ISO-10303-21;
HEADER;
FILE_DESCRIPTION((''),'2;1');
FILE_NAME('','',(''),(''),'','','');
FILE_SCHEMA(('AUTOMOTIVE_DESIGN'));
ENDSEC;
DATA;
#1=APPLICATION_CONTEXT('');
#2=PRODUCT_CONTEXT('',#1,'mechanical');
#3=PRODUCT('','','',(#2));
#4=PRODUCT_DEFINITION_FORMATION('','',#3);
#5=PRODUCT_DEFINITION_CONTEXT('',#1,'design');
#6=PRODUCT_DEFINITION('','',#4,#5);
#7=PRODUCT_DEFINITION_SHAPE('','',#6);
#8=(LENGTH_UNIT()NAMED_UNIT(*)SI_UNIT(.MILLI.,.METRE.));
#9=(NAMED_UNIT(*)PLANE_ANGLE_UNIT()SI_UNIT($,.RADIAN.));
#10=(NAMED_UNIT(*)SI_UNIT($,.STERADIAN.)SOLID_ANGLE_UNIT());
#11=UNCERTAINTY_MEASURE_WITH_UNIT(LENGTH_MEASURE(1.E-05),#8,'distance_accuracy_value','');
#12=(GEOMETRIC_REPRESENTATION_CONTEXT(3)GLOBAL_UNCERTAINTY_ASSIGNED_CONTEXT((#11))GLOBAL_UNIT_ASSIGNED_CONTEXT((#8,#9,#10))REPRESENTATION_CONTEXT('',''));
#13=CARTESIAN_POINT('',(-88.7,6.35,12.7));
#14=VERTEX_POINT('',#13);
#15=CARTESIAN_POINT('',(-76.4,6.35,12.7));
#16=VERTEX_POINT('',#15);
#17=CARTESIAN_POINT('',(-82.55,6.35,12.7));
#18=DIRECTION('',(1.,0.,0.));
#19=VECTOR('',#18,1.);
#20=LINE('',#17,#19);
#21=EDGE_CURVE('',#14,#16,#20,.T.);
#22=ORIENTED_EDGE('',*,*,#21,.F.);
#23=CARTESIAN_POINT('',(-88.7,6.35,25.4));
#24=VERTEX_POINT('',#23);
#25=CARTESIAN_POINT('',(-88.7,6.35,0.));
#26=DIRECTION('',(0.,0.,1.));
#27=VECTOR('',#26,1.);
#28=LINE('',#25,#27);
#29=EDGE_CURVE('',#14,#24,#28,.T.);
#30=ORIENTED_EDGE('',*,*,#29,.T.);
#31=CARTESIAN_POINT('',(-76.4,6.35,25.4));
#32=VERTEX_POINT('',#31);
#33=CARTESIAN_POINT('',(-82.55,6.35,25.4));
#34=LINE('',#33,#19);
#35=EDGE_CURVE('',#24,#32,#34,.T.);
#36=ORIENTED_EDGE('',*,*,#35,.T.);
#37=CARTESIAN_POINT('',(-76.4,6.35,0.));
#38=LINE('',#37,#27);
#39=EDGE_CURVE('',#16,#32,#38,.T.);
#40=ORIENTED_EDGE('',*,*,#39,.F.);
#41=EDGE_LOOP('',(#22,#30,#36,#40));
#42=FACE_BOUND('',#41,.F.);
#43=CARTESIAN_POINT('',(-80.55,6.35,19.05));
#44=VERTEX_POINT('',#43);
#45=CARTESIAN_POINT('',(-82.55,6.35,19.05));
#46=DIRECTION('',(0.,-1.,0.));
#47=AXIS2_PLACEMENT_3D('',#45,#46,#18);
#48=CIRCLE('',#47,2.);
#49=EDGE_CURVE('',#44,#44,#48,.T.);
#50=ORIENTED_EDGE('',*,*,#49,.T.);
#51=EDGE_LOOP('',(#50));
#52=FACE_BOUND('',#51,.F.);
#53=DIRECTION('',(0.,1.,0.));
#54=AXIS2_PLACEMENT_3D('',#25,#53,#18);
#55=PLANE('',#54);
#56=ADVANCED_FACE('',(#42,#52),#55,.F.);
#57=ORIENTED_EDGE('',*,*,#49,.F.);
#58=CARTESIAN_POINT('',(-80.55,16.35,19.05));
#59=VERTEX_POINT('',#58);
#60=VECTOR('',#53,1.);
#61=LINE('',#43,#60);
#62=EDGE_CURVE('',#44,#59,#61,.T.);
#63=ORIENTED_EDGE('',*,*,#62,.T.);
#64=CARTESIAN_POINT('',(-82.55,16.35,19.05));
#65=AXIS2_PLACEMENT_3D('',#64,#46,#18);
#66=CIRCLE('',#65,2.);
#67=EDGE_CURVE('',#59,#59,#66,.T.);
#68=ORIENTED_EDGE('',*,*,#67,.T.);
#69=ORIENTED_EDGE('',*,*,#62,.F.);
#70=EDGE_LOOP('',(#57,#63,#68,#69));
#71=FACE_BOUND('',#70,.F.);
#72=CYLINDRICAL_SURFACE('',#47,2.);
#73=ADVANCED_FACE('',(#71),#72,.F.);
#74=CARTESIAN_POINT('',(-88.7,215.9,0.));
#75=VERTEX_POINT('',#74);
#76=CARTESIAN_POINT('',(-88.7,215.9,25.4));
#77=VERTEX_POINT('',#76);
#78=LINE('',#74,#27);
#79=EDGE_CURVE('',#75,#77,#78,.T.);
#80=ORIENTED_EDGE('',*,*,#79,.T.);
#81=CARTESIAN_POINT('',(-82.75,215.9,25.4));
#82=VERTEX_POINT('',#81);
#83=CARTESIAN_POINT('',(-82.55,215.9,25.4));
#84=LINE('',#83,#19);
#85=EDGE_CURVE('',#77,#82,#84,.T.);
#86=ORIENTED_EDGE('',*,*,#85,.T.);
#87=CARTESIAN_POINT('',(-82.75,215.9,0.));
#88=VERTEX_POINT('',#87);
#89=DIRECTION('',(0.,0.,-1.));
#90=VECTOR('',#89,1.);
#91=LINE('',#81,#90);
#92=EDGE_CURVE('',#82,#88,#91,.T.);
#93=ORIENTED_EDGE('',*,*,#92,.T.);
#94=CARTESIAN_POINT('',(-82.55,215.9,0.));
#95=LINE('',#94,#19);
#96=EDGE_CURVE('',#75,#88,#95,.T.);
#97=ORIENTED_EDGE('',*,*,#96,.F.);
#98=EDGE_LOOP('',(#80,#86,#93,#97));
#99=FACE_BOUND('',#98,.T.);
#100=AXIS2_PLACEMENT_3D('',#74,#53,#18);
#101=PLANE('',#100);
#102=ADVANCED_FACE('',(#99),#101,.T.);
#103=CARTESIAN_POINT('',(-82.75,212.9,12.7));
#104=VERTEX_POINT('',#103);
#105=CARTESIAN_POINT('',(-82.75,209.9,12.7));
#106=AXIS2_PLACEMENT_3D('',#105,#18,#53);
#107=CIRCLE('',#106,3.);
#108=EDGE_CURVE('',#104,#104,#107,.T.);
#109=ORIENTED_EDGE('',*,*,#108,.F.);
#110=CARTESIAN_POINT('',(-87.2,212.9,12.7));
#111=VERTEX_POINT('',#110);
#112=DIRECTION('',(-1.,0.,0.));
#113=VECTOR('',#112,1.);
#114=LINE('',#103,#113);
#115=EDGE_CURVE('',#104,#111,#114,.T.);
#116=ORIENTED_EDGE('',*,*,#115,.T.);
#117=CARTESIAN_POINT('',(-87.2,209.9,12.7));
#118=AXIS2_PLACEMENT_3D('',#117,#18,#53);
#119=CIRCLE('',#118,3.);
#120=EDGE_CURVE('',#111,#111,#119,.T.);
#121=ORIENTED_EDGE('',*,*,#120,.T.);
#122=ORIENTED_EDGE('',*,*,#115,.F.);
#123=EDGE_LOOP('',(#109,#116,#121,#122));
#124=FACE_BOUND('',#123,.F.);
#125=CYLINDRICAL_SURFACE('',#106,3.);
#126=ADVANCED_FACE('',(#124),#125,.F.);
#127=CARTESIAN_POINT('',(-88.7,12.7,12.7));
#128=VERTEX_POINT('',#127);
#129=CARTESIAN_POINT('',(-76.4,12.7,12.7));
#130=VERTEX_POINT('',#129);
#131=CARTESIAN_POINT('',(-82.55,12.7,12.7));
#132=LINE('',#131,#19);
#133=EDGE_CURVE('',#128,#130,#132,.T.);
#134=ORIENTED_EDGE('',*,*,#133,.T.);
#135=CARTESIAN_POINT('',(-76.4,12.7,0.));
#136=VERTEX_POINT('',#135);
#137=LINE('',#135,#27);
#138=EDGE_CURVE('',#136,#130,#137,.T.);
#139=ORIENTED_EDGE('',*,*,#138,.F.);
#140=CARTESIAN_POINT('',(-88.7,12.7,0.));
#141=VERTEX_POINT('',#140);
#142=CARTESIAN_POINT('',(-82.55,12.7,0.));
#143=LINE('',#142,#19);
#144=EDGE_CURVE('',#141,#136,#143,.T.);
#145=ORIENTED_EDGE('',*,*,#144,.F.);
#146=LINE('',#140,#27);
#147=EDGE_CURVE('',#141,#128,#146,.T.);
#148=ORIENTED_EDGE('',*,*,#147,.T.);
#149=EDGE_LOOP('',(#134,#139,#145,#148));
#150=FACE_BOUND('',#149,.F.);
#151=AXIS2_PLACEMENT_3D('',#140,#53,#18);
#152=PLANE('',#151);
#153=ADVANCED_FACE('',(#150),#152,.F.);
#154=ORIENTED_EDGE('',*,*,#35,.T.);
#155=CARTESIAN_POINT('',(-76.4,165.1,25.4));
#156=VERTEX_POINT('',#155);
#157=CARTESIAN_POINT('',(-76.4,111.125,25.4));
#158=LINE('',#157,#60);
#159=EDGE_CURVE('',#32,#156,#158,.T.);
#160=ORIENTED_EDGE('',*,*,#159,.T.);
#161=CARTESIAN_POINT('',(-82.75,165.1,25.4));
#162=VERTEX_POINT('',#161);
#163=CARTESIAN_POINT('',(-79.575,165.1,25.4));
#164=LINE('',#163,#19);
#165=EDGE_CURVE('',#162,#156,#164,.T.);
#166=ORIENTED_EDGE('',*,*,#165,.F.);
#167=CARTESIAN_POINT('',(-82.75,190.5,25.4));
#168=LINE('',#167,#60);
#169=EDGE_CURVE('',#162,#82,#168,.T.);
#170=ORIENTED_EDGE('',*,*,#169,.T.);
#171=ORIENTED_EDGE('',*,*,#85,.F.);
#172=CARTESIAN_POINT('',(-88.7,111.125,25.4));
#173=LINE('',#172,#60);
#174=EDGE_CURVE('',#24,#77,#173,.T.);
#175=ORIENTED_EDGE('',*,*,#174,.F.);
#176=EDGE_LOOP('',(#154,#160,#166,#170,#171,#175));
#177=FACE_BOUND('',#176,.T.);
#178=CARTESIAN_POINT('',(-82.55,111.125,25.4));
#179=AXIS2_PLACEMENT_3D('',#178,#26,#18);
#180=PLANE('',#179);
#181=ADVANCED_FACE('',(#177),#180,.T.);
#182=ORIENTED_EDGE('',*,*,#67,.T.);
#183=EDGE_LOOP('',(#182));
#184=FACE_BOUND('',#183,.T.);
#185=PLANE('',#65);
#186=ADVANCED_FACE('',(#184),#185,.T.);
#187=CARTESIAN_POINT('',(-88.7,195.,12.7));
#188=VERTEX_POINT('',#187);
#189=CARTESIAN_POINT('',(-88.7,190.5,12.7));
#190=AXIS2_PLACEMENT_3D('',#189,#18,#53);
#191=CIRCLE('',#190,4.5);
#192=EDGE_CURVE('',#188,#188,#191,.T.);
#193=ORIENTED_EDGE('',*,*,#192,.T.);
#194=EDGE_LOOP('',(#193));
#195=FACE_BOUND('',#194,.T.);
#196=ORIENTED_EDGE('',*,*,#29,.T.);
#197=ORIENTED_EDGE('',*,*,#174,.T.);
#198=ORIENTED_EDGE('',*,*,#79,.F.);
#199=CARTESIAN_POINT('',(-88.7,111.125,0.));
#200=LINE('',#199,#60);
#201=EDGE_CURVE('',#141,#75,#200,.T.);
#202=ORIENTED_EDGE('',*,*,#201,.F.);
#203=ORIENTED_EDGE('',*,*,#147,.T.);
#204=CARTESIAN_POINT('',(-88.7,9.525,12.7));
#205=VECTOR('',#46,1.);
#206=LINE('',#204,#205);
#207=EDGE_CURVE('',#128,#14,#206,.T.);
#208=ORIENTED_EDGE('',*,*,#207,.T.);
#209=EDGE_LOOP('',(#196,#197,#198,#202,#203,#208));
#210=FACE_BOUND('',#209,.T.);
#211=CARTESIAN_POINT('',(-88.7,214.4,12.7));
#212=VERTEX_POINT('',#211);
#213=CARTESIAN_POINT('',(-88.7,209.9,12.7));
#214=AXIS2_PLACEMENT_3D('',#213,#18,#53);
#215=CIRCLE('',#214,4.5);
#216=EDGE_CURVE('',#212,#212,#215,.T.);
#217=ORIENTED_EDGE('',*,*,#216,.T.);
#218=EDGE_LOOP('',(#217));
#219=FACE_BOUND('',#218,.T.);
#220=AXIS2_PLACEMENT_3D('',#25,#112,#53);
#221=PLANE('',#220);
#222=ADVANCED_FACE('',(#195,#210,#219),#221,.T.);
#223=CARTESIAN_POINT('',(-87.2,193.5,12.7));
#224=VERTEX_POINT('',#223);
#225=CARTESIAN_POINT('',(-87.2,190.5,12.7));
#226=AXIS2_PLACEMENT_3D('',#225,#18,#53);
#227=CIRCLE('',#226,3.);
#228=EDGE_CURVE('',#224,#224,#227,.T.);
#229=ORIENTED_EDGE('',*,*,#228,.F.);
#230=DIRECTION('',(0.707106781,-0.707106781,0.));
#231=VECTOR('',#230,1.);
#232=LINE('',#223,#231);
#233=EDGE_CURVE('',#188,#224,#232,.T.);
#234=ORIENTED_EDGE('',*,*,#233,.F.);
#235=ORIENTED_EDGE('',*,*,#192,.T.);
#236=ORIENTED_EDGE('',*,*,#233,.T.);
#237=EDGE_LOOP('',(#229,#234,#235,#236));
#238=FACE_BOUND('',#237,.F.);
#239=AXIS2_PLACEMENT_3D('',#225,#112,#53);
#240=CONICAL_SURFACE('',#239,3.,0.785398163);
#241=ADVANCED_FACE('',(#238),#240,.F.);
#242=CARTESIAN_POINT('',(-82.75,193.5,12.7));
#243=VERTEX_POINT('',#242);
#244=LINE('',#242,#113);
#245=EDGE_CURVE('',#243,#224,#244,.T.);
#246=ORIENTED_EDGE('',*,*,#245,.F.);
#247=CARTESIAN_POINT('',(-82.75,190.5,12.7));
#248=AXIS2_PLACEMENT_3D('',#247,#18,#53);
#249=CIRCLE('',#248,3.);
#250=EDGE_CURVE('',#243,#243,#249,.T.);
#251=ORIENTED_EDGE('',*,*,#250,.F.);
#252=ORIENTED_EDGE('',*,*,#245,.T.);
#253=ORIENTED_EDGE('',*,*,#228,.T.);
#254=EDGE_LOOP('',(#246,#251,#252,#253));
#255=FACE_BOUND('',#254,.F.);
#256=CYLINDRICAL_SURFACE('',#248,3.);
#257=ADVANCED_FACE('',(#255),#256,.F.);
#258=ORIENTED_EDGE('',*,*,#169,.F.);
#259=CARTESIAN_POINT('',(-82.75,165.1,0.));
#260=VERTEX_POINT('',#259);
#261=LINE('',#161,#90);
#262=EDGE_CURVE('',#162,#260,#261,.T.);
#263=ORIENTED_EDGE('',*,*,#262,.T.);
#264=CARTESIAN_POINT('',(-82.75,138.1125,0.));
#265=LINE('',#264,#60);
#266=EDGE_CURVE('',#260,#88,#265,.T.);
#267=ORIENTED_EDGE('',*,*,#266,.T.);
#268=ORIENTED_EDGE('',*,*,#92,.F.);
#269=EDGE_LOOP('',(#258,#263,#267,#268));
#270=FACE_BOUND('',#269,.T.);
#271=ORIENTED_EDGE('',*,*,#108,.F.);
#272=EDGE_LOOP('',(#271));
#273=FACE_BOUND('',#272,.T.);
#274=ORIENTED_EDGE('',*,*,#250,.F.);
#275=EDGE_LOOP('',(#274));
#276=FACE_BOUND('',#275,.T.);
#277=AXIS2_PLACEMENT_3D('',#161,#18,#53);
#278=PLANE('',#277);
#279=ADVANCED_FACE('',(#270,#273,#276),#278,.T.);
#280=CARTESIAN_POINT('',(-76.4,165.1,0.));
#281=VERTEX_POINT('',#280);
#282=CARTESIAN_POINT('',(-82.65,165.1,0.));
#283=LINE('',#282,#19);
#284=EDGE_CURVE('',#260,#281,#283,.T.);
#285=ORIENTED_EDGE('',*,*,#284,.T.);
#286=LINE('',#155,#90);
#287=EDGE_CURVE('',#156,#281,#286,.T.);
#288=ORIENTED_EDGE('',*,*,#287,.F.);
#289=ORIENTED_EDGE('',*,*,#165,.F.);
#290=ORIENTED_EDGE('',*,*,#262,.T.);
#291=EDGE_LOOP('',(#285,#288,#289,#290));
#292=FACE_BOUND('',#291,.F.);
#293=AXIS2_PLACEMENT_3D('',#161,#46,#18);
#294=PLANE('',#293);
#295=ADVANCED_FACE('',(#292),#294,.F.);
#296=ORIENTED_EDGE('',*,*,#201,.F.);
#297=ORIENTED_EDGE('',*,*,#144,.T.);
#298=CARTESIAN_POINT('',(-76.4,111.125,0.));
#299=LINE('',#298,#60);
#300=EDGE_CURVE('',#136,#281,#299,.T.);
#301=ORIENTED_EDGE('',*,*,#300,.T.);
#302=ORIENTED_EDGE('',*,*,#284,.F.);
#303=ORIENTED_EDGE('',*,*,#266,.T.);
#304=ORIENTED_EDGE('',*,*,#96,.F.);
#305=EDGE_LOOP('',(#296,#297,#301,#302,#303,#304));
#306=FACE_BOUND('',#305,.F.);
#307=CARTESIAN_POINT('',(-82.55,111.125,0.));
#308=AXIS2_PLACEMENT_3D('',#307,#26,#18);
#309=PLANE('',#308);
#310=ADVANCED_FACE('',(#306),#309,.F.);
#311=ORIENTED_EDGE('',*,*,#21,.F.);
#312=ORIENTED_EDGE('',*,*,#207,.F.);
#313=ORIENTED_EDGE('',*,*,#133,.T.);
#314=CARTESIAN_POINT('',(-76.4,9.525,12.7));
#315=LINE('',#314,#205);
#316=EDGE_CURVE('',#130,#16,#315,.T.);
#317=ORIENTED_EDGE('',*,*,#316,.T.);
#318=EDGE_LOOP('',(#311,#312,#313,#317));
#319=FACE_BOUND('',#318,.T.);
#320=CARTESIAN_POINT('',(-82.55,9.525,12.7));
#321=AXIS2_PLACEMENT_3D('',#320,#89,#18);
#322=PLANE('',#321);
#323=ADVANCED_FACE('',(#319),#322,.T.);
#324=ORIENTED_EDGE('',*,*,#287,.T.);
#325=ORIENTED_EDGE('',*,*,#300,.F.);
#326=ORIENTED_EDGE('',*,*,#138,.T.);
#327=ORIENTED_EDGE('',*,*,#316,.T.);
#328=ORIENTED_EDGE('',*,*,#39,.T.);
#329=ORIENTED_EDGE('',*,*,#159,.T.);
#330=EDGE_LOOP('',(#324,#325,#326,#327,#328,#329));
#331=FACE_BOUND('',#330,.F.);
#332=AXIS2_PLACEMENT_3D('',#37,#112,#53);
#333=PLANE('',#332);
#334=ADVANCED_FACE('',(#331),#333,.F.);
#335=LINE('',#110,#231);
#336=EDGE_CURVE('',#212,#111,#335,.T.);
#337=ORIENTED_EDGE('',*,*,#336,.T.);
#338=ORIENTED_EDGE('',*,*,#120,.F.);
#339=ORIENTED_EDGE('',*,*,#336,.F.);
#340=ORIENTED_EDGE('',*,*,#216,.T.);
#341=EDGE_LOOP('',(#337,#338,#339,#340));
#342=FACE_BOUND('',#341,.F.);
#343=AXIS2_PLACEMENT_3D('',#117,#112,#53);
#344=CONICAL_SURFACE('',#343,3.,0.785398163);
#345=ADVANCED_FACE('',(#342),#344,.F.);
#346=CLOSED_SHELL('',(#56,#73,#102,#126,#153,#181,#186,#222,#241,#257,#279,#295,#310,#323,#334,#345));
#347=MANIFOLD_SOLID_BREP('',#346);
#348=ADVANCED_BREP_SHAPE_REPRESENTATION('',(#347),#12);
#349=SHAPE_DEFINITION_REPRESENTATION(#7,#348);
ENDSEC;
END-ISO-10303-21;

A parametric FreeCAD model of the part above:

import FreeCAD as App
import Part
import Sketcher


def edges_at(feature, points):
    """Names of the edges that pass closest to the given points."""
    edges = feature.Shape.Edges
    near = lambda p: min(range(len(edges)), key=lambda i: edges[i].distToShape(Part.Vertex(*p))[0])
    return sorted({f"Edge{near(p) + 1}" for p in points})


def add_polygon(sketch, points):
    """Adds a closed chain of lines whose ends are joined by coincident constraints."""
    first, n = sketch.GeometryCount, len(points)
    for a, b in zip(points, points[1:] + points[:1]):
        sketch.addGeometry(Part.LineSegment(App.Vector(*a, 0), App.Vector(*b, 0)), False)
    for i in range(n):
        sketch.addConstraint(Sketcher.Constraint("Coincident", first + i, 2, first + (i + 1) % n, 1))

doc = App.newDocument("Part")
params = doc.addObject("Spreadsheet::Sheet", "Params")
for row, (alias, value) in enumerate([
    ("sketch1_width", "12.3 mm"),
    ("sketch1_height", "209.55 mm"),
    ("pad1_length", "25.4 mm"),
    ("sketch2_width", "12.3 mm"),
    ("sketch2_height", "6.35 mm"),
    ("pocket1_length", "12.7 mm"),
    ("sketch3_diameter", "4 mm"),
    ("pocket2_length", "10 mm"),
    ("sketch4_height", "50.8 mm"),
    ("sketch4_width", "6.35 mm"),
    ("sketch5_diameter", "6 mm"),
    ("chamfer_size", "1.5 mm"),
], start=1):
    params.set(f"A{row}", alias)
    params.set(f"B{row}", "=" + value)
    params.setAlias(f"B{row}", alias)

body = doc.addObject("PartDesign::Body", "Body")

sketch1 = body.newObject("Sketcher::SketchObject", "Sketch")
sketch1.AttachmentSupport = (doc.getObject("XY_Plane"), [""])
sketch1.MapMode = "FlatFace"
add_polygon(sketch1, [(-89, 216), (-89, 6), (-76, 6), (-76, 216)])
sketch1.addConstraint([
    Sketcher.Constraint("Vertical", 0),
    Sketcher.Constraint("Horizontal", 1),
    Sketcher.Constraint("Vertical", 2),
    Sketcher.Constraint("Horizontal", 3),
    Sketcher.Constraint("DistanceX", 1, 1, 1, 2, 12.3),
    Sketcher.Constraint("DistanceY", 0, 2, 0, 1, 209.55),
    Sketcher.Constraint("DistanceX", 0, 2, -1, 1, 88.7),
    Sketcher.Constraint("DistanceY", -1, 1, 2, 2, 215.9),
])
sketch1.setExpression("Constraints[8]", "Params.sketch1_width")
sketch1.setExpression("Constraints[9]", "Params.sketch1_height")
pad1 = body.newObject("PartDesign::Pad", "Pad")
pad1.Profile = sketch1
pad1.setExpression("Length", "Params.pad1_length")

sketch2 = body.newObject("Sketcher::SketchObject", "Sketch001")
sketch2.AttachmentSupport = (doc.getObject("XY_Plane"), [""])
sketch2.MapMode = "FlatFace"
add_polygon(sketch2, [(-89, 6), (-89, 13), (-76, 13), (-76, 6)])
sketch2.addConstraint([
    Sketcher.Constraint("Vertical", 0),
    Sketcher.Constraint("Horizontal", 1),
    Sketcher.Constraint("Vertical", 2),
    Sketcher.Constraint("Horizontal", 3),
    Sketcher.Constraint("DistanceX", 1, 1, 1, 2, 12.3),
    Sketcher.Constraint("DistanceY", 0, 1, 0, 2, 6.35),
    Sketcher.Constraint("DistanceX", 0, 2, -1, 1, 88.7),
    Sketcher.Constraint("DistanceY", -1, 1, 0, 2, 12.7),
])
sketch2.setExpression("Constraints[8]", "Params.sketch2_width")
sketch2.setExpression("Constraints[9]", "Params.sketch2_height")
pocket1 = body.newObject("PartDesign::Pocket", "Pocket")
pocket1.Profile = sketch2
pocket1.setExpression("Length", "Params.pocket1_length")
pocket1.Reversed = True

sketch3 = body.newObject("Sketcher::SketchObject", "Sketch002")
sketch3.AttachmentSupport = (doc.getObject("XZ_Plane"), [""])
sketch3.MapMode = "FlatFace"
sketch3.AttachmentOffset = App.Placement(App.Vector(0, 0, -6.35), App.Rotation())
sketch3.addGeometry(Part.Circle(App.Vector(-82.5, 19.1, 0), App.Vector(0, 0, 1), 2), False)
sketch3.addConstraint([
    Sketcher.Constraint("Diameter", 0, 4.0),
    Sketcher.Constraint("DistanceX", 0, 3, -1, 1, 82.55),
    Sketcher.Constraint("DistanceY", -1, 1, 0, 3, 19.05),
])
sketch3.setExpression("Constraints[0]", "Params.sketch3_diameter")
pocket2 = body.newObject("PartDesign::Pocket", "Pocket001")
pocket2.Profile = sketch3
pocket2.setExpression("Length", "Params.pocket2_length")

sketch4 = body.newObject("Sketcher::SketchObject", "Sketch003")
sketch4.AttachmentSupport = (doc.getObject("XY_Plane"), [""])
sketch4.MapMode = "FlatFace"
sketch4.AttachmentOffset = App.Placement(App.Vector(0, 0, 25.4), App.Rotation())
add_polygon(sketch4, [(-83, 216), (-83, 165), (-76, 165), (-76, 216)])
sketch4.addConstraint([
    Sketcher.Constraint("Vertical", 0),
    Sketcher.Constraint("Horizontal", 1),
    Sketcher.Constraint("Vertical", 2),
    Sketcher.Constraint("Horizontal", 3),
    Sketcher.Constraint("DistanceY", 0, 2, 0, 1, 50.8),
    Sketcher.Constraint("DistanceX", 1, 1, 1, 2, 6.35),
    Sketcher.Constraint("DistanceY", -1, 1, 0, 2, 165.1),
    Sketcher.Constraint("DistanceX", 1, 2, -1, 1, 76.4),
])
sketch4.setExpression("Constraints[8]", "Params.sketch4_height")
sketch4.setExpression("Constraints[9]", "Params.sketch4_width")
pocket3 = body.newObject("PartDesign::Pocket", "Pocket002")
pocket3.Profile = sketch4
pocket3.Type = "ThroughAll"

sketch5 = body.newObject("Sketcher::SketchObject", "Sketch004")
sketch5.AttachmentSupport = (doc.getObject("YZ_Plane"), [""])
sketch5.MapMode = "FlatFace"
sketch5.AttachmentOffset = App.Placement(App.Vector(0, 0, -82.75), App.Rotation())
sketch5.addGeometry([
    Part.Circle(App.Vector(190.5, 12.7, 0), App.Vector(0, 0, 1), 3),
    Part.Circle(App.Vector(209.9, 12.7, 0), App.Vector(0, 0, 1), 3),
], False)
sketch5.addConstraint([
    Sketcher.Constraint("Equal", 0, 1),
    Sketcher.Constraint("Horizontal", 0, 3, 1, 3),
    Sketcher.Constraint("Diameter", 0, 6.0),
    Sketcher.Constraint("DistanceX", -1, 1, 0, 3, 190.5),
    Sketcher.Constraint("DistanceY", -1, 1, 0, 3, 12.7),
    Sketcher.Constraint("DistanceX", -1, 1, 1, 3, 209.9),
])
sketch5.setExpression("Constraints[2]", "Params.sketch5_diameter")
pocket4 = body.newObject("PartDesign::Pocket", "Pocket003")
pocket4.Profile = sketch5
pocket4.Type = "ThroughAll"
doc.recompute()

chamfer = body.newObject("PartDesign::Chamfer", "Chamfer")
chamfer.Base = (pocket4, edges_at(pocket4, [(-88.7, 187.5, 12.7), (-88.7, 206.9, 12.7)]))
chamfer.setExpression("Size", "Params.chamfer_size")

doc.recompute()
